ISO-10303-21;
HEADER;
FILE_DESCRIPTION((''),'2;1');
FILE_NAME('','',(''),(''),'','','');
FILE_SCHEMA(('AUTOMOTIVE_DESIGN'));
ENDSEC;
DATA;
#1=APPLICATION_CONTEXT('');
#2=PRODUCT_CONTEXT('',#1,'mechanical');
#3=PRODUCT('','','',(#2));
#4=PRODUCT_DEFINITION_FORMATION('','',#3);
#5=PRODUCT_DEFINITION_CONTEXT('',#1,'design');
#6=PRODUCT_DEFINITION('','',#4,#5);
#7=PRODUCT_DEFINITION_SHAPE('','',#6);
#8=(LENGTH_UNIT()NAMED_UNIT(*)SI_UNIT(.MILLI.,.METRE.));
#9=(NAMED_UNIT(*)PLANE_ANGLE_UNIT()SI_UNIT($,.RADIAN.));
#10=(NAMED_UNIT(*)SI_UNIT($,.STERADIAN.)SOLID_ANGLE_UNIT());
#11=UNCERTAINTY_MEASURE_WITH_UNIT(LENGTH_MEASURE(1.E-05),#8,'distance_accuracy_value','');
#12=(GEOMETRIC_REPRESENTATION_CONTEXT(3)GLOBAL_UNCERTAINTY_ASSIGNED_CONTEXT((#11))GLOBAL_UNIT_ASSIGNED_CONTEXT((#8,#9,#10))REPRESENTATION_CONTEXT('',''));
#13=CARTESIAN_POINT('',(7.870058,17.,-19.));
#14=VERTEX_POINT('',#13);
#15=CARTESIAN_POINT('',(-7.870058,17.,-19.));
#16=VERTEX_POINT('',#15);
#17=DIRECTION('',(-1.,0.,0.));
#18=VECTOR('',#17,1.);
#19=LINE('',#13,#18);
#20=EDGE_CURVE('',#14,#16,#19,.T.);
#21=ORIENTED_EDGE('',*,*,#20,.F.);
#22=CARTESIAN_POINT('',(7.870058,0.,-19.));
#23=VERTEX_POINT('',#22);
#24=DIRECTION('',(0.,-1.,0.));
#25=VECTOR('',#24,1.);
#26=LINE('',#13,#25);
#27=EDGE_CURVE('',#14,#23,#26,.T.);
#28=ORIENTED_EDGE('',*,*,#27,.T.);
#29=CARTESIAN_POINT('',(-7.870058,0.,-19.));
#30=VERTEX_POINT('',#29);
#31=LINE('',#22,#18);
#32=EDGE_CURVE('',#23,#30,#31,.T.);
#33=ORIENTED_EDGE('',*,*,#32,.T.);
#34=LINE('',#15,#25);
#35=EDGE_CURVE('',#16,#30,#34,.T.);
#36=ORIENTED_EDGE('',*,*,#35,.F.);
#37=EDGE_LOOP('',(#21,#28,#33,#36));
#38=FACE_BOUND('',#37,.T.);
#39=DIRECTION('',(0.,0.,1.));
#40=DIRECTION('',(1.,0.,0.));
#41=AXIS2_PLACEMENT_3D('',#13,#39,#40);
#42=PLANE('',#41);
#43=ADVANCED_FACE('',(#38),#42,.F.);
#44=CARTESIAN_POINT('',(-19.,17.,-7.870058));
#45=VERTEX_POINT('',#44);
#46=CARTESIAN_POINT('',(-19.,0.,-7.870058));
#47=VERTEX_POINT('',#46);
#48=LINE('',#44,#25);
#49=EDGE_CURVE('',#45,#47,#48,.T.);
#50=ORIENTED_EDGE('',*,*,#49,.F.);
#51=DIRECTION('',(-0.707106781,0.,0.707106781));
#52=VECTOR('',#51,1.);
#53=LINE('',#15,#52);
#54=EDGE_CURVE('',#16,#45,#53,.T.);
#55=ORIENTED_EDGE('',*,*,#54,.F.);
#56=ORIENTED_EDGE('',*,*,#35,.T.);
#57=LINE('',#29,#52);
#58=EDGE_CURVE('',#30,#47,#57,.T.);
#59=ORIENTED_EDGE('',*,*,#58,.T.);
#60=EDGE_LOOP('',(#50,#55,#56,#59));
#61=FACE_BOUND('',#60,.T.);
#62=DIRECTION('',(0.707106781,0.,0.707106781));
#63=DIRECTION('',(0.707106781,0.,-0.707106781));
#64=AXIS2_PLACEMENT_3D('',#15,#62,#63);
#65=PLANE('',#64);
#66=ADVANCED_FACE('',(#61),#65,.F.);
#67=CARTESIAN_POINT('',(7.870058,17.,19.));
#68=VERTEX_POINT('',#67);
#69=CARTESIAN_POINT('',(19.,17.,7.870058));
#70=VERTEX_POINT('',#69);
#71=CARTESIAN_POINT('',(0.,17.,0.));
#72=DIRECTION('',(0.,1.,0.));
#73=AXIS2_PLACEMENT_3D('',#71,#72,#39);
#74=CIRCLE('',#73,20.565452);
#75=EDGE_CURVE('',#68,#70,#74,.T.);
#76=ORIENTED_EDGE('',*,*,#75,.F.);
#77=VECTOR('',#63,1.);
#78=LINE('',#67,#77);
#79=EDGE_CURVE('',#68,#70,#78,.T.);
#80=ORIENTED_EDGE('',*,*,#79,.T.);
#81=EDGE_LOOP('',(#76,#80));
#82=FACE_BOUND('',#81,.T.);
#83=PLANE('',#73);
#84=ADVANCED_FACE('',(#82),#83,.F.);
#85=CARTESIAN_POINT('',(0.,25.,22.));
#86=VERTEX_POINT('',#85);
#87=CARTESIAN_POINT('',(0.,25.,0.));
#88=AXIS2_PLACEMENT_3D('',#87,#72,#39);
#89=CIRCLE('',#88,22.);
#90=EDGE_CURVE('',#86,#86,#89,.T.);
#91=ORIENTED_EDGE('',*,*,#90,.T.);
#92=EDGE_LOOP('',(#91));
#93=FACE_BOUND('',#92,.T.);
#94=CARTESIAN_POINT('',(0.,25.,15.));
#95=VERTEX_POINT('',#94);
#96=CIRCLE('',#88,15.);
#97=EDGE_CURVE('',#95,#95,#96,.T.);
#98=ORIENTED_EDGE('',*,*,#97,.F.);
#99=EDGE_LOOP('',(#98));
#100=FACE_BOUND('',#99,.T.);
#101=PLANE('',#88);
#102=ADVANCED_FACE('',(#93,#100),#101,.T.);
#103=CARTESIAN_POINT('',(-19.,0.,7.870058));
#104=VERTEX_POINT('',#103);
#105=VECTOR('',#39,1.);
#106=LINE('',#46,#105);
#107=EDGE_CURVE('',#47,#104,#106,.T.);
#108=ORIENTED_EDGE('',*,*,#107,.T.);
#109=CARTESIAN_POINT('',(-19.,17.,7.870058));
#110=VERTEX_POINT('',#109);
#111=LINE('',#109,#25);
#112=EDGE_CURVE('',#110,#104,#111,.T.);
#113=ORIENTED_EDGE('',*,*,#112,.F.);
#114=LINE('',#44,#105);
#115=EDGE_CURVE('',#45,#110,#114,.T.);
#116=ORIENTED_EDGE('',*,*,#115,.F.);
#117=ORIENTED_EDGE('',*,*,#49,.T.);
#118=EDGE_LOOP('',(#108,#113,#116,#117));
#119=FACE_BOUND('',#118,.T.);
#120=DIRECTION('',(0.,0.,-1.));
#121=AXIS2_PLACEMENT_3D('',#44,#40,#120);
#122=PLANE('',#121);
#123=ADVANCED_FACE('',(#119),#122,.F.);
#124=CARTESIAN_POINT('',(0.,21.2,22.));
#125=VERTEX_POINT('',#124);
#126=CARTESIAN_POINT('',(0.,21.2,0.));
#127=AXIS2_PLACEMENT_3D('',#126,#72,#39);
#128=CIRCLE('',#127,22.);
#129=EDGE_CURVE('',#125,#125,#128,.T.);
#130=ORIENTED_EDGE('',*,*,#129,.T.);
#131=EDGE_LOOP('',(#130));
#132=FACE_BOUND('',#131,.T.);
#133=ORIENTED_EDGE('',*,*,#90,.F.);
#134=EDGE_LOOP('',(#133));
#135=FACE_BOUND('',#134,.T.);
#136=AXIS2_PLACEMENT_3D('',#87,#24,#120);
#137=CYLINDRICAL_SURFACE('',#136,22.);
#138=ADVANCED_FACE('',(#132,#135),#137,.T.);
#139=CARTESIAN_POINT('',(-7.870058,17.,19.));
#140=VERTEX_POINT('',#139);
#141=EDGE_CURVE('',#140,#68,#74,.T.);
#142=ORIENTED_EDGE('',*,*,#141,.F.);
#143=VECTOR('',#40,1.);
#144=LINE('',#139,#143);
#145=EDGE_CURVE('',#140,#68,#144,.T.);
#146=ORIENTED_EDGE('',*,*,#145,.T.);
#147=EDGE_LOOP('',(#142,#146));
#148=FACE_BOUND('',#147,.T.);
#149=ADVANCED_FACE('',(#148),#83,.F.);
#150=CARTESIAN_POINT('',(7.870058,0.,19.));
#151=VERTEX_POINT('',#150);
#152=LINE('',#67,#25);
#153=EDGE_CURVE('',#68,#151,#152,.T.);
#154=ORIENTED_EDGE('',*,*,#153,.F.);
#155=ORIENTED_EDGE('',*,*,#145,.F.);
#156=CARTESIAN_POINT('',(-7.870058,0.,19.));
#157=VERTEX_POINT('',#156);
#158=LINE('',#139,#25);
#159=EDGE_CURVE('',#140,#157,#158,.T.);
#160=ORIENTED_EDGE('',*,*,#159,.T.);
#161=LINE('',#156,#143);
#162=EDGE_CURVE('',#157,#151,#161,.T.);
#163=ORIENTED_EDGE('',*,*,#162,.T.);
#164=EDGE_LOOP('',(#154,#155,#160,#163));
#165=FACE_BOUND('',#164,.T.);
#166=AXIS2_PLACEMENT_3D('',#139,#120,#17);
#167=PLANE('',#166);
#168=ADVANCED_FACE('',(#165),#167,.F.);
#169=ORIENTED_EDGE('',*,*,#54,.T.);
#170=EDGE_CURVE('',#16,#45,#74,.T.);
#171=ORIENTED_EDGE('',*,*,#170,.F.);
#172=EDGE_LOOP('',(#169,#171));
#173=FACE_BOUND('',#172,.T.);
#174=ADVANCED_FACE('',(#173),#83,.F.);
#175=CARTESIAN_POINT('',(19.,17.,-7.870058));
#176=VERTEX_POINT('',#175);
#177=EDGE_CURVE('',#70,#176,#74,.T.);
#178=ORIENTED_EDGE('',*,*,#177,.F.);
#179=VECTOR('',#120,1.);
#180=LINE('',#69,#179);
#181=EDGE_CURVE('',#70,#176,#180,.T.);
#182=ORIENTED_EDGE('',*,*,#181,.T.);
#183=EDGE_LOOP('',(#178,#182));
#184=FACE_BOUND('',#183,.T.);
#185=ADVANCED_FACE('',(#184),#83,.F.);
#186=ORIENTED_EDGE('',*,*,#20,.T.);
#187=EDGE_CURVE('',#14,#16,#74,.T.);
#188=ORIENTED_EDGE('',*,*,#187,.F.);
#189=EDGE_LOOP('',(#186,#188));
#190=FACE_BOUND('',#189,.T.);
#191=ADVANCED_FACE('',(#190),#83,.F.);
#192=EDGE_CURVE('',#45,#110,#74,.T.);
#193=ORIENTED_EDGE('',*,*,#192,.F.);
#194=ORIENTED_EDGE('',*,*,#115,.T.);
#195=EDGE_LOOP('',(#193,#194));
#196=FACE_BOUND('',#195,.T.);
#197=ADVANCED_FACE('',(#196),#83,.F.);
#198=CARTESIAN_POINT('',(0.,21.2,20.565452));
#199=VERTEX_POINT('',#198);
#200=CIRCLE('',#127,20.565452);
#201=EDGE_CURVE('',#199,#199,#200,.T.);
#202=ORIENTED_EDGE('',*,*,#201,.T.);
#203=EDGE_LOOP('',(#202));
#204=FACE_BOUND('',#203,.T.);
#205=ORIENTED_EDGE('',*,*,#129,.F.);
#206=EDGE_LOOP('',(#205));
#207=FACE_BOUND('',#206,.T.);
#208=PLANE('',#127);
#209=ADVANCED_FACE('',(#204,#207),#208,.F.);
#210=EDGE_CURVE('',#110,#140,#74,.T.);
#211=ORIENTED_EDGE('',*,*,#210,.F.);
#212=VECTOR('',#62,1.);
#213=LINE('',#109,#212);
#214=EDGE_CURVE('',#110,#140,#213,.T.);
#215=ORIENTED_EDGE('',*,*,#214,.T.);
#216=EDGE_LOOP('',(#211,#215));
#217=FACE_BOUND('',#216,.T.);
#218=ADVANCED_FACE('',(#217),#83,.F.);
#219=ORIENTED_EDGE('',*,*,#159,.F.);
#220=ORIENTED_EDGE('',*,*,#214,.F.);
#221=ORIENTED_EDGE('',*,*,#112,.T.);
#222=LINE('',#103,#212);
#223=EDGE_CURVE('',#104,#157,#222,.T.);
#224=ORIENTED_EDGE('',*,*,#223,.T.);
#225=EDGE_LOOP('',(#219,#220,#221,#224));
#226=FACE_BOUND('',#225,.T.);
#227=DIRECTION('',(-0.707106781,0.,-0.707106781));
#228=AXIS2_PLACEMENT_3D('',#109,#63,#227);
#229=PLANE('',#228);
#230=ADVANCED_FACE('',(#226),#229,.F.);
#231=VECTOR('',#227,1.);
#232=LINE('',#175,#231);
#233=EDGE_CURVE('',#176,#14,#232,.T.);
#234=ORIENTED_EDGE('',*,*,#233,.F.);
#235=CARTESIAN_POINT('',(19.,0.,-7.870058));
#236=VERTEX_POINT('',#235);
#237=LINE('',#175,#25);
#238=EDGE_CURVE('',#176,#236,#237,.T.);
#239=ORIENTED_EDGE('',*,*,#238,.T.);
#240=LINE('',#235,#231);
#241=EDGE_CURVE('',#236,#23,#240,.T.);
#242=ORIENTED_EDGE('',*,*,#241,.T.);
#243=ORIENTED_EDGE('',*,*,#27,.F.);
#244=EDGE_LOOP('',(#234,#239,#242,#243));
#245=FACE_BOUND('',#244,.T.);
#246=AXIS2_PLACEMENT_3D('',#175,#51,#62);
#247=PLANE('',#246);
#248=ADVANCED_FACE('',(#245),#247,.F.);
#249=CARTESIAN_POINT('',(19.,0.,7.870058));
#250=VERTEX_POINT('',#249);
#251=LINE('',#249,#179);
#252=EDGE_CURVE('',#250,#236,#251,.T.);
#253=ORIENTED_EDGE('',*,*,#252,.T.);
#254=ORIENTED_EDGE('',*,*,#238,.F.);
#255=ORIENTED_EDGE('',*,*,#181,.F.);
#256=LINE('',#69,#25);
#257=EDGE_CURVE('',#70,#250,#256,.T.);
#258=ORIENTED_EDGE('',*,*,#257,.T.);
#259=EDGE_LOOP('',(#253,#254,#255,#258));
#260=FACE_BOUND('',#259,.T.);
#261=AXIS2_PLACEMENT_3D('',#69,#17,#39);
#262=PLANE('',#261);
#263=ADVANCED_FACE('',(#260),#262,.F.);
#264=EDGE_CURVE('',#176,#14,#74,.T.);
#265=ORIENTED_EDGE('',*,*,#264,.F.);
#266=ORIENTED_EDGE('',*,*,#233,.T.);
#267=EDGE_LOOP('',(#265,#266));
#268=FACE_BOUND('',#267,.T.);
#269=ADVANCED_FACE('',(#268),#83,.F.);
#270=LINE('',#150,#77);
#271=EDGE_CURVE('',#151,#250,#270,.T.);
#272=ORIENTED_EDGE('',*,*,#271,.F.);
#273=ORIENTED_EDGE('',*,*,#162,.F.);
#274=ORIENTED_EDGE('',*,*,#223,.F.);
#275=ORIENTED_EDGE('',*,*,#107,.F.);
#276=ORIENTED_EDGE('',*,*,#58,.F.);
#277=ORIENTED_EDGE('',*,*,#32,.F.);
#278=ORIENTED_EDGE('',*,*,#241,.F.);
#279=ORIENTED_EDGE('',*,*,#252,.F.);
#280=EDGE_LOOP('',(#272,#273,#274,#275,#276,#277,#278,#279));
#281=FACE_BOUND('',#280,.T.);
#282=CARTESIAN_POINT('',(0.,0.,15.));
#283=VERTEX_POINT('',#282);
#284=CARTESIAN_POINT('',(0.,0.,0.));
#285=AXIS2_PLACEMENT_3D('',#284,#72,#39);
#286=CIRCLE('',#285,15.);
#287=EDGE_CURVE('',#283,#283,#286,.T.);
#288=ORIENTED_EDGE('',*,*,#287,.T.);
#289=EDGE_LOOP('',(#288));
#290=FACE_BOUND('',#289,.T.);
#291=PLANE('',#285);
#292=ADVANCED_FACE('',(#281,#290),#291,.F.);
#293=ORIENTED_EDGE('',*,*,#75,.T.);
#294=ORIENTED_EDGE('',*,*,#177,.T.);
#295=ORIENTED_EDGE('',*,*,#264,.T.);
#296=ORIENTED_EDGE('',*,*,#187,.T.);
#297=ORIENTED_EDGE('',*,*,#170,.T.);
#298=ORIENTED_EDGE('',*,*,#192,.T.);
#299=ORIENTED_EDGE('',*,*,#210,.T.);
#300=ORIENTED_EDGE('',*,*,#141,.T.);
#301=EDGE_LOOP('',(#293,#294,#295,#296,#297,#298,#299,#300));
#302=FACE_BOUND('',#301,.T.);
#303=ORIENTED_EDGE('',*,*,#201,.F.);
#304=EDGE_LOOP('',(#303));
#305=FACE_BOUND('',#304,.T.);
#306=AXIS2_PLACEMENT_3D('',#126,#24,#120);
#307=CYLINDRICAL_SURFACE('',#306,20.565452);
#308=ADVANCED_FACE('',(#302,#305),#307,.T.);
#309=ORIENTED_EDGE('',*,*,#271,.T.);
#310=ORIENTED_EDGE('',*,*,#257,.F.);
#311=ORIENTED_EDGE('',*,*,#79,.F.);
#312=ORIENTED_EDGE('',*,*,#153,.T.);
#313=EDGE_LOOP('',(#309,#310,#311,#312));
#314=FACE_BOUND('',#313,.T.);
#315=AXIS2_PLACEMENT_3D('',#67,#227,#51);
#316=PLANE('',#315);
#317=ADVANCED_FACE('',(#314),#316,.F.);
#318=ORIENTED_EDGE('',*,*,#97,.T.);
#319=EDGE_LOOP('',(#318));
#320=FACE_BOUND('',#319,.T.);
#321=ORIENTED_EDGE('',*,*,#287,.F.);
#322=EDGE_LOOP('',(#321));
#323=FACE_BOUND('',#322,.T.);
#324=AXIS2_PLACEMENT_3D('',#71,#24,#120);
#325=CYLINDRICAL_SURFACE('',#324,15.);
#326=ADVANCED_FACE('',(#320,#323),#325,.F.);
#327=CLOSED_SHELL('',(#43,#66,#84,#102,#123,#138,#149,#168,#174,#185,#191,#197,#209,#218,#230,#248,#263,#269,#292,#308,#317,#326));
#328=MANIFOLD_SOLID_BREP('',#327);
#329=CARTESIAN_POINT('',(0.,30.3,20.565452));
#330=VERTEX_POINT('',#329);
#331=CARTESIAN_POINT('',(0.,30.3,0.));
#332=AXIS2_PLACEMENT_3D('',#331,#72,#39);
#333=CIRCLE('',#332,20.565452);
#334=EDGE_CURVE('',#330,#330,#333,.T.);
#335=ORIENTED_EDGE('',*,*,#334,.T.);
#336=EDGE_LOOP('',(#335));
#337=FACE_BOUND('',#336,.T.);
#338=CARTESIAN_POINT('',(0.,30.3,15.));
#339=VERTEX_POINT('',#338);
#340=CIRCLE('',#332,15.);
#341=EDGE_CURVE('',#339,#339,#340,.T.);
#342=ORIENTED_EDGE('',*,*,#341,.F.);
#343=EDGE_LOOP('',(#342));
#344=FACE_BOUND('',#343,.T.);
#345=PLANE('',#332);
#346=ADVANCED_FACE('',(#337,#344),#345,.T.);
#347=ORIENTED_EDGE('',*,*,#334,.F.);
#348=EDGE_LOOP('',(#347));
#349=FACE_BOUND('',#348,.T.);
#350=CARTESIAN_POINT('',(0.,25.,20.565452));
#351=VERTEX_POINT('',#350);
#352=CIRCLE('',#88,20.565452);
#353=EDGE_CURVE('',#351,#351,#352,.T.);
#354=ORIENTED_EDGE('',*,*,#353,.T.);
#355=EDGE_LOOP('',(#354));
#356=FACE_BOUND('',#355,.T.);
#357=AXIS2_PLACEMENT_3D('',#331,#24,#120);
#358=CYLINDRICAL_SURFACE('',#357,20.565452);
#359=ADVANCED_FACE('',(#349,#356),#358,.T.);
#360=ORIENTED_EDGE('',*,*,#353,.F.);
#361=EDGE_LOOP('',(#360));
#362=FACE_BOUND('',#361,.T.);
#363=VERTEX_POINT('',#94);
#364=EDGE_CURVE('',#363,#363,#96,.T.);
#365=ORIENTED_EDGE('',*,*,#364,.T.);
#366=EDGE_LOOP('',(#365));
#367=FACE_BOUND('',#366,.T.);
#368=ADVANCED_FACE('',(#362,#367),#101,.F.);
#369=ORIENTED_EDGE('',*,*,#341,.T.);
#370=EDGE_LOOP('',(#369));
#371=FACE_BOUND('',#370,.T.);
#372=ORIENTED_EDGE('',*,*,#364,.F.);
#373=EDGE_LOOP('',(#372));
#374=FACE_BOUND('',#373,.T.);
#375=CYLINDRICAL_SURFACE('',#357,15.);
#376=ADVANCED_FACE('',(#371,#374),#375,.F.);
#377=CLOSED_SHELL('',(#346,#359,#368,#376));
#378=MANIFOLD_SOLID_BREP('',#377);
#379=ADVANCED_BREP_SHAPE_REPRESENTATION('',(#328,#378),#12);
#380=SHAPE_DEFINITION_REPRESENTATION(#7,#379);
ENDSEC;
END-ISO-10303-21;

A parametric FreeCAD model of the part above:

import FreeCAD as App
import Part
import Sketcher

V = App.Vector


def add_polygon(sketch, points):
    """Adds a closed chain of lines whose ends are joined by coincident constraints."""
    first, n = sketch.GeometryCount, len(points)
    for a, b in zip(points, points[1:] + points[:1]):
        sketch.addGeometry(Part.LineSegment(App.Vector(*a, 0), App.Vector(*b, 0)), False)
    for i in range(n):
        sketch.addConstraint(Sketcher.Constraint("Coincident", first + i, 2, first + (i + 1) % n, 1))

doc = App.newDocument("Part")
body = doc.addObject("PartDesign::Body", "Body")

# Sketch on XZ plane
sketch1 = doc.addObject("Sketcher::SketchObject", "Sketch")
body.addObject(sketch1)
sketch1.AttachmentSupport = (doc.XZ_Plane, [""])
sketch1.MapMode = "FlatFace"
add_polygon(sketch1, [(7.870058, 19), (19, 7.870058), (19, -7.870058), (7.870058, -19), (-7.870058, -19), (-19, -7.870058), (-19, 7.870058), (-7.870058, 19)])  # lines 0-7
sketch1.addGeometry(Part.Circle(V(0, 0, 0), V(0, 0, 1), 15), False)  # 8
sketch1.addConstraint(Sketcher.Constraint("Vertical", 1))
sketch1.addConstraint(Sketcher.Constraint("Horizontal", 3))
sketch1.addConstraint(Sketcher.Constraint("Vertical", 5))
sketch1.addConstraint(Sketcher.Constraint("Horizontal", 7))
sketch1.addConstraint(Sketcher.Constraint("Coincident", 8, 3, -1, 1))
sketch1.addConstraint(Sketcher.Constraint("Symmetric", 0, 2, 4, 2, -1, 1))
sketch1.addConstraint(Sketcher.Constraint("Symmetric", 2, 2, 6, 2, -1, 1))
sketch1.addConstraint(Sketcher.Constraint("Perpendicular", 0, 2))
sketch1.addConstraint(Sketcher.Constraint("Perpendicular", 2, 4))
sketch1.addConstraint(Sketcher.Constraint("Perpendicular", 4, 6))
sketch1.addConstraint(Sketcher.Constraint("Horizontal", 1, 2, 4, 2))
sketch1.addConstraint(Sketcher.Constraint("Vertical", 3, 2, 6, 2))
sketch1.addConstraint(Sketcher.Constraint("Equal", 7, 1))
sketch1.addConstraint(Sketcher.Constraint("Diameter", 8, 30.0))
sketch1.addConstraint(Sketcher.Constraint("DistanceX", -1, 1, 0, 2, 19.0))
sketch1.addConstraint(Sketcher.Constraint("DistanceX", 3, 2, 3, 1, 15.740115))
pad1 = doc.addObject("PartDesign::Pad", "Pad")
body.addObject(pad1)
pad1.Profile = sketch1
pad1.Length = 17
pad1.Reversed = True

# Sketch on XZ plane
sketch2 = doc.addObject("Sketcher::SketchObject", "Sketch001")
body.addObject(sketch2)
sketch2.AttachmentSupport = (doc.XZ_Plane, [""])
sketch2.MapMode = "FlatFace"
sketch2.AttachmentOffset = App.Placement(V(0, 0, -17), App.Rotation())
sketch2.addGeometry(Part.Circle(V(0, 0, 0), V(0, 0, 1), 20.565452), False)
sketch2.addGeometry(Part.Circle(V(0, 0, 0), V(0, 0, 1), 15), False)
sketch2.addConstraint(Sketcher.Constraint("Coincident", 0, 3, -1, 1))
sketch2.addConstraint(Sketcher.Constraint("Coincident", 1, 3, -1, 1))
sketch2.addConstraint(Sketcher.Constraint("Diameter", 1, 30.0))
sketch2.addConstraint(Sketcher.Constraint("Diameter", 0, 41.130904))
pad2 = doc.addObject("PartDesign::Pad", "Pad001")
body.addObject(pad2)
pad2.Profile = sketch2
pad2.Length = 4.2
pad2.Reversed = True

# Sketch on XZ plane
sketch3 = doc.addObject("Sketcher::SketchObject", "Sketch002")
body.addObject(sketch3)
sketch3.AttachmentSupport = (doc.XZ_Plane, [""])
sketch3.MapMode = "FlatFace"
sketch3.AttachmentOffset = App.Placement(V(0, 0, -21.2), App.Rotation())
sketch3.addGeometry(Part.Circle(V(0, 0, 0), V(0, 0, 1), 22), False)
sketch3.addGeometry(Part.Circle(V(0, 0, 0), V(0, 0, 1), 15), False)
sketch3.addConstraint(Sketcher.Constraint("Coincident", 0, 3, -1, 1))
sketch3.addConstraint(Sketcher.Constraint("Coincident", 1, 3, -1, 1))
sketch3.addConstraint(Sketcher.Constraint("Diameter", 0, 44.0))
sketch3.addConstraint(Sketcher.Constraint("Diameter", 1, 30.0))
pad3 = doc.addObject("PartDesign::Pad", "Pad002")
body.addObject(pad3)
pad3.Profile = sketch3
pad3.Length = 3.8
pad3.Reversed = True
body2 = doc.addObject("PartDesign::Body", "Body001")

# Sketch on XZ plane
sketch4 = doc.addObject("Sketcher::SketchObject", "Sketch003")
body2.addObject(sketch4)
sketch4.AttachmentSupport = (doc.getObject("XZ_Plane001"), [""])
sketch4.MapMode = "FlatFace"
sketch4.AttachmentOffset = App.Placement(V(0, 0, -25), App.Rotation())
sketch4.addGeometry(Part.Circle(V(0, 0, 0), V(0, 0, 1), 20.565452), False)
sketch4.addGeometry(Part.Circle(V(0, 0, 0), V(0, 0, 1), 15), False)
sketch4.addConstraint(Sketcher.Constraint("Coincident", 0, 3, -1, 1))
sketch4.addConstraint(Sketcher.Constraint("Coincident", 1, 3, -1, 1))
sketch4.addConstraint(Sketcher.Constraint("Diameter", 1, 30.0))
sketch4.addConstraint(Sketcher.Constraint("Diameter", 0, 41.130904))
pad4 = doc.addObject("PartDesign::Pad", "Pad003")
body2.addObject(pad4)
pad4.Profile = sketch4
pad4.Length = 5.3
pad4.Reversed = True

doc.recompute()
